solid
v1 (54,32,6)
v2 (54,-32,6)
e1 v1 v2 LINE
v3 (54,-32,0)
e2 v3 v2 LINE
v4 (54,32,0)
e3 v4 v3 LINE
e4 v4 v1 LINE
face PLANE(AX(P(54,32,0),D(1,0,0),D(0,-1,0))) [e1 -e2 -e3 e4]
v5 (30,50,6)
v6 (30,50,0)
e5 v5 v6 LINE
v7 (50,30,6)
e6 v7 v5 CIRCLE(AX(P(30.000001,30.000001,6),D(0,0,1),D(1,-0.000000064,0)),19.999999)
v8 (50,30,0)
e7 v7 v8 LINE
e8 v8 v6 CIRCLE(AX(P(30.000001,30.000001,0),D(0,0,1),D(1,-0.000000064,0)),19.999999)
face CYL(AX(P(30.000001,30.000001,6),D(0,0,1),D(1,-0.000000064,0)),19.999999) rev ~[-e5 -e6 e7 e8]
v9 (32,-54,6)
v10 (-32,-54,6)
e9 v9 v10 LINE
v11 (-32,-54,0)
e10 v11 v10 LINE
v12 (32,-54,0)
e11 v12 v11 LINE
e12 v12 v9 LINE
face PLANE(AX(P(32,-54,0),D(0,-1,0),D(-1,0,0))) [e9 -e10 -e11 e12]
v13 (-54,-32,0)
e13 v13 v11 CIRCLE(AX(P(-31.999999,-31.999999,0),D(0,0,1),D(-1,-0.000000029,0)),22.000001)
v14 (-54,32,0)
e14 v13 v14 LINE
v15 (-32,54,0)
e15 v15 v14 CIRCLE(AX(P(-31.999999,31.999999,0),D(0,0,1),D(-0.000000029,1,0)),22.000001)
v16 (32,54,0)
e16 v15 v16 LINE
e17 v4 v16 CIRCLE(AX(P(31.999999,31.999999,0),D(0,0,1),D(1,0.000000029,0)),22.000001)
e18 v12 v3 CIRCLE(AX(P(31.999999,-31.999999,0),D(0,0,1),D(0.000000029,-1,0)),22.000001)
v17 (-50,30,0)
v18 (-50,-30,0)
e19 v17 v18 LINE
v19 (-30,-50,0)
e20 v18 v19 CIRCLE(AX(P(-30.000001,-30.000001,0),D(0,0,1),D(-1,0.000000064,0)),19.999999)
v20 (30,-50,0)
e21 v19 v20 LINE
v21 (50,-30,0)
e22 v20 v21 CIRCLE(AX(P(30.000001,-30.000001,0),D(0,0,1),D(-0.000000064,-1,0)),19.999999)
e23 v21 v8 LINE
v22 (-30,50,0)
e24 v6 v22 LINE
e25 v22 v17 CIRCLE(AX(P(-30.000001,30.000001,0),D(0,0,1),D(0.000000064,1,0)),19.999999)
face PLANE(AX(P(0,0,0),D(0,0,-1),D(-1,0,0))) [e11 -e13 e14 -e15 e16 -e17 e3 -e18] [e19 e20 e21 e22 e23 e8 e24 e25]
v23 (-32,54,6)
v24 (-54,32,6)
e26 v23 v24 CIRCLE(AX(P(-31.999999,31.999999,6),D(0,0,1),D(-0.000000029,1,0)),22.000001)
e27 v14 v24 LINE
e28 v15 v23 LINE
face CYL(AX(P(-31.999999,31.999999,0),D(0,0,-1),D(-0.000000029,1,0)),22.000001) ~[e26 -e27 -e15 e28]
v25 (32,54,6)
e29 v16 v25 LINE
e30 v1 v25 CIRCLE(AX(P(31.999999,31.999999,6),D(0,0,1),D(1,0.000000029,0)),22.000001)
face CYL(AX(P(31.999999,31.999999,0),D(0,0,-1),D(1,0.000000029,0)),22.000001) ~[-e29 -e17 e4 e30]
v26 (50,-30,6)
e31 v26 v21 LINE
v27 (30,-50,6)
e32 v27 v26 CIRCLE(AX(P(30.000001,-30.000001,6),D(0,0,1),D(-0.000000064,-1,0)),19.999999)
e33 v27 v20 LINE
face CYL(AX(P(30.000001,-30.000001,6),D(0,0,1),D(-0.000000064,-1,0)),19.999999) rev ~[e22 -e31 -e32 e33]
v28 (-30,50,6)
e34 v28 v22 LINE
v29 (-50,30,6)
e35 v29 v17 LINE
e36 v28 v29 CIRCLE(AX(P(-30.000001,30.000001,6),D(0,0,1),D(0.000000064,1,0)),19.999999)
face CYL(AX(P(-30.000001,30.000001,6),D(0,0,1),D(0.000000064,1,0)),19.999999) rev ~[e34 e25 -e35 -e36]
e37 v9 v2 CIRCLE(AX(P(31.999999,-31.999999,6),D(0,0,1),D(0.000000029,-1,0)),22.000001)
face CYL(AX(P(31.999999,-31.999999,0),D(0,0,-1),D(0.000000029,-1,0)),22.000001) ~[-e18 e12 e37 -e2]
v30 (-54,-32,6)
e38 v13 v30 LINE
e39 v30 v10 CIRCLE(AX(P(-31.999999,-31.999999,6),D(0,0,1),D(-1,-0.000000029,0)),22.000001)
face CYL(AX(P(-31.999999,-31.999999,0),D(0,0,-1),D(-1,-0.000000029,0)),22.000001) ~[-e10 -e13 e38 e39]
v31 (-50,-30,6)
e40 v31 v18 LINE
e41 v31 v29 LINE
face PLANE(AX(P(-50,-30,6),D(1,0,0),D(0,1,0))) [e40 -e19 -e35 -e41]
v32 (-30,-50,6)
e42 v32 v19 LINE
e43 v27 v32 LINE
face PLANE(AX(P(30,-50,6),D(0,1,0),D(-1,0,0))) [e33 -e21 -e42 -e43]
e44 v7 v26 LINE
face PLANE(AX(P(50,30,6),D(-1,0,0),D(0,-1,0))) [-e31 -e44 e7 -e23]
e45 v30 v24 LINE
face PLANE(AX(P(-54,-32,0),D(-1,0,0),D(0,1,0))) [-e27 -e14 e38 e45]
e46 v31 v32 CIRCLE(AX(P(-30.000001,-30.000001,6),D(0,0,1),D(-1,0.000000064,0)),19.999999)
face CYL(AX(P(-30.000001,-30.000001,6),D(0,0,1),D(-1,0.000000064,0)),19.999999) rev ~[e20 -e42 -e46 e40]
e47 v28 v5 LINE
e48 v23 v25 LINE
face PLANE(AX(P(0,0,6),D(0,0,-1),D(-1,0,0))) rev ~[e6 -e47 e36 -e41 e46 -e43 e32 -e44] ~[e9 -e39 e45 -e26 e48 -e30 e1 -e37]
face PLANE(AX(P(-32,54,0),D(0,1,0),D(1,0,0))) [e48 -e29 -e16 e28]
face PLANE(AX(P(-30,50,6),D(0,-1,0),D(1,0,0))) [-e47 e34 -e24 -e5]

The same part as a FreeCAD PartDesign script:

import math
import FreeCAD as App
import Part
import Sketcher
from FreeCAD import Vector
Q = App.Units.Quantity

doc = App.newDocument("Part")
body = doc.addObject("PartDesign::Body", "Body")

# Sketch on XY plane
sketch1 = body.newObject("Sketcher::SketchObject", "Sketch")
sketch1.AttachmentSupport = (doc.getObject("XY_Plane"), [""])
sketch1.MapMode = "FlatFace"
sketch1.addGeometry([
    Part.LineSegment(Vector(32, 54, 0), Vector(-32, 54, 0)),  # 0
    Part.ArcOfCircle(Part.Circle(Vector(-32, 32, 0), Vector(0, 0, 1), 22), math.radians(90), math.radians(180)),  # 1
    Part.LineSegment(Vector(-54, 32, 0), Vector(-54, -32, 0)),  # 2
    Part.ArcOfCircle(Part.Circle(Vector(-32, -32, 0), Vector(0, 0, 1), 22), math.radians(-180), math.radians(-90)),  # 3
    Part.LineSegment(Vector(-32, -54, 0), Vector(32, -54, 0)),  # 4
    Part.ArcOfCircle(Part.Circle(Vector(32, -32, 0), Vector(0, 0, 1), 22), math.radians(-90), math.radians(0)),  # 5
    Part.LineSegment(Vector(54, -32, 0), Vector(54, 32, 0)),  # 6
    Part.ArcOfCircle(Part.Circle(Vector(32, 32, 0), Vector(0, 0, 1), 22), math.radians(0), math.radians(90)),  # 7
], False)
sketch1.addConstraint([
    Sketcher.Constraint("Tangent", 0, 2, 1, 1),
    Sketcher.Constraint("Tangent", 1, 2, 2, 1),
    Sketcher.Constraint("Tangent", 2, 2, 3, 1),
    Sketcher.Constraint("Tangent", 3, 2, 4, 1),
    Sketcher.Constraint("Tangent", 4, 2, 5, 1),
    Sketcher.Constraint("Tangent", 5, 2, 6, 1),
    Sketcher.Constraint("Tangent", 6, 2, 7, 1),
    Sketcher.Constraint("Tangent", 7, 2, 0, 1),
    Sketcher.Constraint("Horizontal", 0),
    Sketcher.Constraint("Vertical", 2),
    Sketcher.Constraint("Horizontal", 4),
    Sketcher.Constraint("Vertical", 6),
    Sketcher.Constraint("Equal", 1, 3),
    Sketcher.Constraint("Equal", 3, 5),
    Sketcher.Constraint("Equal", 5, 7),
    Sketcher.Constraint("Symmetric", 1, 3, 5, 3, -1, 1),
    Sketcher.Constraint("Equal", 4, 2),
    Sketcher.Constraint("Radius", 1, Q("22.000001 mm")),
    Sketcher.Constraint("DistanceX", 0, 2, 0, 1, Q("64 mm")),
])
pad1 = body.newObject("PartDesign::Pad", "Pad")
pad1.Profile = sketch1
pad1.Length = 6

# Sketch on XY plane
sketch2 = body.newObject("Sketcher::SketchObject", "Sketch001")
sketch2.AttachmentSupport = (doc.getObject("XY_Plane"), [""])
sketch2.MapMode = "FlatFace"
sketch2.AttachmentOffset = App.Placement(Vector(0, 0, 6), App.Rotation())
sketch2.addGeometry([
    Part.LineSegment(Vector(30, 50, 0), Vector(-30, 50, 0)),  # 0
    Part.ArcOfCircle(Part.Circle(Vector(-30, 30, 0), Vector(0, 0, 1), 20), math.radians(90), math.radians(180)),  # 1
    Part.LineSegment(Vector(-50, 30, 0), Vector(-50, -30, 0)),  # 2
    Part.ArcOfCircle(Part.Circle(Vector(-30, -30, 0), Vector(0, 0, 1), 20), math.radians(180), math.radians(270)),  # 3
    Part.LineSegment(Vector(-30, -50, 0), Vector(30, -50, 0)),  # 4
    Part.ArcOfCircle(Part.Circle(Vector(30, -30, 0), Vector(0, 0, 1), 20), math.radians(-90), math.radians(0)),  # 5
    Part.LineSegment(Vector(50, -30, 0), Vector(50, 30, 0)),  # 6
    Part.ArcOfCircle(Part.Circle(Vector(30, 30, 0), Vector(0, 0, 1), 20), math.radians(0), math.radians(90)),  # 7
], False)
sketch2.addConstraint([
    Sketcher.Constraint("Tangent", 0, 2, 1, 1),
    Sketcher.Constraint("Tangent", 1, 2, 2, 1),
    Sketcher.Constraint("Tangent", 2, 2, 3, 1),
    Sketcher.Constraint("Tangent", 3, 2, 4, 1),
    Sketcher.Constraint("Tangent", 4, 2, 5, 1),
    Sketcher.Constraint("Tangent", 5, 2, 6, 1),
    Sketcher.Constraint("Tangent", 6, 2, 7, 1),
    Sketcher.Constraint("Tangent", 7, 2, 0, 1),
    Sketcher.Constraint("Horizontal", 0),
    Sketcher.Constraint("Vertical", 2),
    Sketcher.Constraint("Horizontal", 4),
    Sketcher.Constraint("Vertical", 6),
    Sketcher.Constraint("Equal", 1, 3),
    Sketcher.Constraint("Equal", 3, 5),
    Sketcher.Constraint("Equal", 5, 7),
    Sketcher.Constraint("Symmetric", 1, 3, 5, 3, -1, 1),
    Sketcher.Constraint("Equal", 4, 2),
    Sketcher.Constraint("Radius", 1, Q("19.999999 mm")),
    Sketcher.Constraint("DistanceX", 0, 2, 0, 1, Q("60 mm")),
])
pocket1 = body.newObject("PartDesign::Pocket", "Pocket")
pocket1.Profile = sketch2
pocket1.Length = 28

doc.recompute()
